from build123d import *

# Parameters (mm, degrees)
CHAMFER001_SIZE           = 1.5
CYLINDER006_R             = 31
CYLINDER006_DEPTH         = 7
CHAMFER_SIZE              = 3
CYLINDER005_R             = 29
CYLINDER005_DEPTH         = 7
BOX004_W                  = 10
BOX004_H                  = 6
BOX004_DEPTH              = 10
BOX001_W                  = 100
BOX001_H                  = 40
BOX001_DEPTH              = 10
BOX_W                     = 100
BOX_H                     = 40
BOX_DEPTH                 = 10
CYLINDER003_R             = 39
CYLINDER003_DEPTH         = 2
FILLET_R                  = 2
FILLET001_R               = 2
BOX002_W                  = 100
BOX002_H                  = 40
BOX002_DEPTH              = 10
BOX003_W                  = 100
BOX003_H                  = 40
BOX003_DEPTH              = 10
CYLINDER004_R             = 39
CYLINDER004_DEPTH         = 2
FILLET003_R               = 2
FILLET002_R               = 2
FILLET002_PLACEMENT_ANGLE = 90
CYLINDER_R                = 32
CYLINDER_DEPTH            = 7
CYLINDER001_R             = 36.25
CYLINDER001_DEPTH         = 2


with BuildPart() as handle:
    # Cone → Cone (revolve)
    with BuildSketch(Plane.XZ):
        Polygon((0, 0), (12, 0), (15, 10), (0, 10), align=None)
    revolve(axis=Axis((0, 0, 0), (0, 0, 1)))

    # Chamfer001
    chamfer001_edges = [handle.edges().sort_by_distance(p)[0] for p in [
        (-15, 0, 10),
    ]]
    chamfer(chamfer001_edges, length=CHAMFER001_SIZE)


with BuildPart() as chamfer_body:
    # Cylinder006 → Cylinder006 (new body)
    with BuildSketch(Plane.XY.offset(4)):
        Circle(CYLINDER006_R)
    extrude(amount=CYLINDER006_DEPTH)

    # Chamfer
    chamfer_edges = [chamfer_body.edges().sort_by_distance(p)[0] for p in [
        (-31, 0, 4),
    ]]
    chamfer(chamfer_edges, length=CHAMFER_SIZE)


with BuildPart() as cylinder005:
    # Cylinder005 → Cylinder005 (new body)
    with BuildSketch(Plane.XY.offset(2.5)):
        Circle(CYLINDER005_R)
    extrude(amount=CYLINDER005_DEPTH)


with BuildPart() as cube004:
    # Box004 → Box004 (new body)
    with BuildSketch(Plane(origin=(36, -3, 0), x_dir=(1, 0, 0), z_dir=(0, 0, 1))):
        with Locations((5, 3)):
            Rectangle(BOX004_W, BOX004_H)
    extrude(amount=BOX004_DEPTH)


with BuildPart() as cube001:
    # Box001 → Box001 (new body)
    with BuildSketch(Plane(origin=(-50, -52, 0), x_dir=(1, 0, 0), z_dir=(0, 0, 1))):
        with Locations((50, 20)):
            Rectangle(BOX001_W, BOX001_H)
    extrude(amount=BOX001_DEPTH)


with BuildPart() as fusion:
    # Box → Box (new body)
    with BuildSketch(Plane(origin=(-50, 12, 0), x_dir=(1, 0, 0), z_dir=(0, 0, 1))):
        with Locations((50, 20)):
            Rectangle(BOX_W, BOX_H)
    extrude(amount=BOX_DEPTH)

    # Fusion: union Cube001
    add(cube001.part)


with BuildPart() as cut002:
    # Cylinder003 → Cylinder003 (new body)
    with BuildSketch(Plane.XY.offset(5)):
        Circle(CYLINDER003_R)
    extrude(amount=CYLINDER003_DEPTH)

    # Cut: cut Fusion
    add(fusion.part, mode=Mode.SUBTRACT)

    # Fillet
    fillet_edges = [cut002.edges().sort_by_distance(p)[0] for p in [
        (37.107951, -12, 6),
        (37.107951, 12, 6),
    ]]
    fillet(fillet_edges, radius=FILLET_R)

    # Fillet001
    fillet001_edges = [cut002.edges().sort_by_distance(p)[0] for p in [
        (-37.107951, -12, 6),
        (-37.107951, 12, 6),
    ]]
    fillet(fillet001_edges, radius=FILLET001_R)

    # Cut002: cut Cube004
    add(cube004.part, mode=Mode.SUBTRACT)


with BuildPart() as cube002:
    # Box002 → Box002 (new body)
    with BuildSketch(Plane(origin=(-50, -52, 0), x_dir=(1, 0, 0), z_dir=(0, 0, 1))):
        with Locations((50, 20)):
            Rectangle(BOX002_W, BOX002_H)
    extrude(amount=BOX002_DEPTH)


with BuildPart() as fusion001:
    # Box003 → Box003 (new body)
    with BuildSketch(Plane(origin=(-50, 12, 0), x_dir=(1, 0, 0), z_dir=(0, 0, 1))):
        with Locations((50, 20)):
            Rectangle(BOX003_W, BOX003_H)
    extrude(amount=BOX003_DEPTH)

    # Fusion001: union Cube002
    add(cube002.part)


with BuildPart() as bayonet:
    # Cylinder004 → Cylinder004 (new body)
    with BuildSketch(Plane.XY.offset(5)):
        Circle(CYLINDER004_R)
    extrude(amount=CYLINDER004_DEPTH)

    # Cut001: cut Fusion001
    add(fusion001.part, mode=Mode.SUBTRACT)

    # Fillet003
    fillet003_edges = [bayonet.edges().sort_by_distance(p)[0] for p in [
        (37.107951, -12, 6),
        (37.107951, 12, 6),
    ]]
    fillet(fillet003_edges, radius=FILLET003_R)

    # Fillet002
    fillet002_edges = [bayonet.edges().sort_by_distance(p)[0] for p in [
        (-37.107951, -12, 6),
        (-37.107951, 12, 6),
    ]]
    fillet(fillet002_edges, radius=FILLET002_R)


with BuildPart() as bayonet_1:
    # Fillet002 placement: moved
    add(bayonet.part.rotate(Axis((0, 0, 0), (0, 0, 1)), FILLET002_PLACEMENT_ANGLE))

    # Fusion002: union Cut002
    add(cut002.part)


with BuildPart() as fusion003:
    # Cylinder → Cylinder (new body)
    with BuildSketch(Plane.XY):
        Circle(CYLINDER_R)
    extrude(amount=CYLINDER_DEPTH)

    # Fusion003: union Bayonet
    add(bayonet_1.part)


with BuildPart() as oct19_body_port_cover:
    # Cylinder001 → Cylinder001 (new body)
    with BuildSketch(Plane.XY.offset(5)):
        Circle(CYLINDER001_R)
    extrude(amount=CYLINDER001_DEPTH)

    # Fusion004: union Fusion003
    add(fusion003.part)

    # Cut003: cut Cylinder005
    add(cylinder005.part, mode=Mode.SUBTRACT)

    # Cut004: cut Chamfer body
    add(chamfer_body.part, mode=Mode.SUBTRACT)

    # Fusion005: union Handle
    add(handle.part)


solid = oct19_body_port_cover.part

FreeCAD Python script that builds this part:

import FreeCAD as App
import Part
import Sketcher
Q = App.Units.Quantity


def edges_at(feature, points):
    """Names of the edges that pass closest to the given points."""
    edges = feature.Shape.Edges
    near = lambda p: min(range(len(edges)), key=lambda i: edges[i].distToShape(Part.Vertex(*p))[0])
    return sorted({f"Edge{near(p) + 1}" for p in points})


def add_polygon(sketch, points):
    """Adds a closed chain of lines whose ends are joined by coincident constraints."""
    first, n = sketch.GeometryCount, len(points)
    for a, b in zip(points, points[1:] + points[:1]):
        sketch.addGeometry(Part.LineSegment(App.Vector(*a, 0), App.Vector(*b, 0)), False)
    for i in range(n):
        sketch.addConstraint(Sketcher.Constraint("Coincident", first + i, 2, first + (i + 1) % n, 1))

doc = App.newDocument("Part")
params = doc.addObject("Spreadsheet::Sheet", "Params")
for row, (alias, value) in enumerate([
    ("sketch1_width", "12 mm"),
    ("sketch1_width2", "15 mm"),
    ("sketch1_height", "10 mm"),
    ("revolution_angle", "360 deg"),
    ("chamfer_size", "1.5 mm"),
    ("sketch2_diameter", "62 mm"),
    ("pad1_length", "7 mm"),
    ("chamfer2_size", "3 mm"),
    ("sketch3_diameter", "58 mm"),
    ("pad2_length", "7 mm"),
    ("sketch4_width", "10 mm"),
    ("sketch4_height", "6 mm"),
    ("pad3_length", "10 mm"),
    ("sketch5_width", "100 mm"),
    ("sketch5_height", "40 mm"),
    ("pad4_length", "10 mm"),
    ("sketch6_width", "100 mm"),
    ("sketch6_height", "40 mm"),
    ("pad5_length", "10 mm"),
    ("sketch7_diameter", "78 mm"),
    ("pad6_length", "2 mm"),
    ("fillet_radius", "2 mm"),
    ("fillet2_radius", "2 mm"),
    ("sketch8_width", "100 mm"),
    ("sketch8_height", "40 mm"),
    ("pad7_length", "10 mm"),
    ("sketch9_width", "100 mm"),
    ("sketch9_height", "40 mm"),
    ("pad8_length", "10 mm"),
    ("sketch10_diameter", "78 mm"),
    ("pad9_length", "2 mm"),
    ("fillet3_radius", "2 mm"),
    ("fillet4_radius", "2 mm"),
    ("sketch11_diameter", "64 mm"),
    ("pad10_length", "7 mm"),
    ("sketch12_diameter", "72.5 mm"),
    ("pad11_length", "2 mm"),
], start=1):
    params.set(f"A{row}", alias)
    params.set(f"B{row}", "=" + value)
    params.setAlias(f"B{row}", alias)

body = doc.addObject("PartDesign::Body", "Body")

# Sketch on XZ plane
sketch1 = doc.addObject("Sketcher::SketchObject", "Sketch")
body.addObject(sketch1)
sketch1.AttachmentSupport = (doc.XZ_Plane, [""])
sketch1.MapMode = "FlatFace"
add_polygon(sketch1, [(0, 0), (12, 0), (15, 10), (0, 10)])  # lines 0-3
sketch1.addConstraint([
    Sketcher.Constraint("Horizontal", 0),
    Sketcher.Constraint("Horizontal", 2),
    Sketcher.Constraint("Vertical", 3),
    Sketcher.Constraint("Coincident", 3, 2, -1, 1),
    Sketcher.Constraint("DistanceX", 0, 1, 0, 2, Q("12 mm")),
    Sketcher.Constraint("DistanceX", 2, 2, 2, 1, Q("15 mm")),
    Sketcher.Constraint("DistanceY", 3, 2, 3, 1, Q("10 mm")),
])
sketch1.setExpression("Constraints[8]", "Params.sketch1_width")
sketch1.setExpression("Constraints[9]", "Params.sketch1_width2")
sketch1.setExpression("Constraints[10]", "Params.sketch1_height")
revolution = doc.addObject("PartDesign::Revolution", "Revolution")
body.addObject(revolution)
revolution.Profile = sketch1
revolution.ReferenceAxis = (sketch1, ["V_Axis"])
revolution.setExpression("Angle", "Params.revolution_angle")
doc.recompute()

chamfer = doc.addObject("PartDesign::Chamfer", "Chamfer")
body.addObject(chamfer)
chamfer.Base = (revolution, edges_at(revolution, [(-15, 0, 10)]))
chamfer.setExpression("Size", "Params.chamfer_size")
body2 = doc.addObject("PartDesign::Body", "Body001")

# Sketch on XY plane
sketch2 = doc.addObject("Sketcher::SketchObject", "Sketch001")
body2.addObject(sketch2)
sketch2.AttachmentSupport = (doc.getObject("XY_Plane001"), [""])
sketch2.MapMode = "FlatFace"
sketch2.AttachmentOffset = App.Placement(App.Vector(0, 0, 4), App.Rotation())
sketch2.addGeometry(Part.Circle(App.Vector(0, 0, 0), App.Vector(0, 0, 1), 31), False)
sketch2.addConstraint([
    Sketcher.Constraint("Coincident", 0, 3, -1, 1),
    Sketcher.Constraint("Diameter", 0, Q("62 mm")),
])
sketch2.setExpression("Constraints[1]", "Params.sketch2_diameter")
pad1 = doc.addObject("PartDesign::Pad", "Pad")
body2.addObject(pad1)
pad1.Profile = sketch2
pad1.setExpression("Length", "Params.pad1_length")
doc.recompute()

chamfer2 = doc.addObject("PartDesign::Chamfer", "Chamfer001")
body2.addObject(chamfer2)
chamfer2.Base = (pad1, edges_at(pad1, [(-31, 0, 4)]))
chamfer2.setExpression("Size", "Params.chamfer2_size")
body3 = doc.addObject("PartDesign::Body", "Body002")

# Sketch on XY plane
sketch3 = doc.addObject("Sketcher::SketchObject", "Sketch002")
body3.addObject(sketch3)
sketch3.AttachmentSupport = (doc.getObject("XY_Plane002"), [""])
sketch3.MapMode = "FlatFace"
sketch3.AttachmentOffset = App.Placement(App.Vector(0, 0, 2.5), App.Rotation())
sketch3.addGeometry(Part.Circle(App.Vector(0, 0, 0), App.Vector(0, 0, 1), 29), False)
sketch3.addConstraint([
    Sketcher.Constraint("Coincident", 0, 3, -1, 1),
    Sketcher.Constraint("Diameter", 0, Q("58 mm")),
])
sketch3.setExpression("Constraints[1]", "Params.sketch3_diameter")
pad2 = doc.addObject("PartDesign::Pad", "Pad001")
body3.addObject(pad2)
pad2.Profile = sketch3
pad2.setExpression("Length", "Params.pad2_length")
body4 = doc.addObject("PartDesign::Body", "Body003")

# Sketch on XY plane
sketch4 = doc.addObject("Sketcher::SketchObject", "Sketch003")
body4.addObject(sketch4)
sketch4.AttachmentSupport = (doc.getObject("XY_Plane003"), [""])
sketch4.MapMode = "FlatFace"
add_polygon(sketch4, [(36, 3), (36, -3), (46, -3), (46, 3)])  # lines 0-3
sketch4.addConstraint([
    Sketcher.Constraint("Vertical", 0),
    Sketcher.Constraint("Horizontal", 1),
    Sketcher.Constraint("Vertical", 2),
    Sketcher.Constraint("Horizontal", 3),
    Sketcher.Constraint("DistanceX", 1, 1, 1, 2, Q("10 mm")),
    Sketcher.Constraint("DistanceY", 0, 2, 0, 1, Q("6 mm")),
    Sketcher.Constraint("DistanceX", -1, 1, 0, 2, Q("36 mm")),
    Sketcher.Constraint("DistanceY", 0, 2, -1, 1, Q("3 mm")),
])
sketch4.setExpression("Constraints[8]", "Params.sketch4_width")
sketch4.setExpression("Constraints[9]", "Params.sketch4_height")
pad3 = doc.addObject("PartDesign::Pad", "Pad002")
body4.addObject(pad3)
pad3.Profile = sketch4
pad3.setExpression("Length", "Params.pad3_length")
body5 = doc.addObject("PartDesign::Body", "Body004")

# Sketch on XY plane
sketch5 = doc.addObject("Sketcher::SketchObject", "Sketch004")
body5.addObject(sketch5)
sketch5.AttachmentSupport = (doc.getObject("XY_Plane004"), [""])
sketch5.MapMode = "FlatFace"
add_polygon(sketch5, [(-50, -12), (-50, -52), (50, -52), (50, -12)])  # lines 0-3
sketch5.addConstraint([
    Sketcher.Constraint("Vertical", 0),
    Sketcher.Constraint("Horizontal", 1),
    Sketcher.Constraint("Vertical", 2),
    Sketcher.Constraint("Horizontal", 3),
    Sketcher.Constraint("DistanceX", 1, 1, 1, 2, Q("100 mm")),
    Sketcher.Constraint("DistanceY", 0, 2, 0, 1, Q("40 mm")),
    Sketcher.Constraint("DistanceX", 0, 2, -1, 1, Q("50 mm")),
    Sketcher.Constraint("DistanceY", 0, 2, -1, 1, Q("52 mm")),
])
sketch5.setExpression("Constraints[8]", "Params.sketch5_width")
sketch5.setExpression("Constraints[9]", "Params.sketch5_height")
pad4 = doc.addObject("PartDesign::Pad", "Pad003")
body5.addObject(pad4)
pad4.Profile = sketch5
pad4.setExpression("Length", "Params.pad4_length")
body6 = doc.addObject("PartDesign::Body", "Body005")
body6.AllowCompound = True

# Sketch on XY plane
sketch6 = doc.addObject("Sketcher::SketchObject", "Sketch005")
body6.addObject(sketch6)
sketch6.AttachmentSupport = (doc.getObject("XY_Plane005"), [""])
sketch6.MapMode = "FlatFace"
add_polygon(sketch6, [(-50, 52), (-50, 12), (50, 12), (50, 52)])  # lines 0-3
sketch6.addConstraint([
    Sketcher.Constraint("Vertical", 0),
    Sketcher.Constraint("Horizontal", 1),
    Sketcher.Constraint("Vertical", 2),
    Sketcher.Constraint("Horizontal", 3),
    Sketcher.Constraint("DistanceX", 1, 1, 1, 2, Q("100 mm")),
    Sketcher.Constraint("DistanceY", 0, 2, 0, 1, Q("40 mm")),
    Sketcher.Constraint("DistanceX", 0, 2, -1, 1, Q("50 mm")),
    Sketcher.Constraint("DistanceY", -1, 1, 0, 2, Q("12 mm")),
])
sketch6.setExpression("Constraints[8]", "Params.sketch6_width")
sketch6.setExpression("Constraints[9]", "Params.sketch6_height")
pad5 = doc.addObject("PartDesign::Pad", "Pad004")
body6.addObject(pad5)
pad5.Profile = sketch6
pad5.setExpression("Length", "Params.pad5_length")
doc.recompute()

boolean = doc.addObject("PartDesign::Boolean", "Boolean")
body6.addObject(boolean)
boolean.Type = "Fuse"
boolean.addObjects([body5])
body7 = doc.addObject("PartDesign::Body", "Body006")

# Sketch on XY plane
sketch7 = doc.addObject("Sketcher::SketchObject", "Sketch006")
body7.addObject(sketch7)
sketch7.AttachmentSupport = (doc.getObject("XY_Plane006"), [""])
sketch7.MapMode = "FlatFace"
sketch7.AttachmentOffset = App.Placement(App.Vector(0, 0, 5), App.Rotation())
sketch7.addGeometry(Part.Circle(App.Vector(0, 0, 0), App.Vector(0, 0, 1), 39), False)
sketch7.addConstraint([
    Sketcher.Constraint("Coincident", 0, 3, -1, 1),
    Sketcher.Constraint("Diameter", 0, Q("78 mm")),
])
sketch7.setExpression("Constraints[1]", "Params.sketch7_diameter")
pad6 = doc.addObject("PartDesign::Pad", "Pad005")
body7.addObject(pad6)
pad6.Profile = sketch7
pad6.setExpression("Length", "Params.pad6_length")
doc.recompute()

boolean2 = doc.addObject("PartDesign::Boolean", "Boolean001")
body7.addObject(boolean2)
boolean2.Type = "Cut"
boolean2.addObjects([body6])
doc.recompute()

fillet = doc.addObject("PartDesign::Fillet", "Fillet")
body7.addObject(fillet)
fillet.Base = (boolean2, edges_at(boolean2, [(37.108, -12, 6), (37.108, 12, 6)]))
fillet.setExpression("Radius", "Params.fillet_radius")
doc.recompute()

fillet2 = doc.addObject("PartDesign::Fillet", "Fillet001")
body7.addObject(fillet2)
fillet2.Base = (fillet, edges_at(fillet, [(-37.108, -12, 6), (-37.108, 12, 6)]))
fillet2.setExpression("Radius", "Params.fillet2_radius")
doc.recompute()

boolean3 = doc.addObject("PartDesign::Boolean", "Boolean002")
body7.addObject(boolean3)
boolean3.Type = "Cut"
boolean3.addObjects([body4])
body8 = doc.addObject("PartDesign::Body", "Body007")

# Sketch on XY plane
sketch8 = doc.addObject("Sketcher::SketchObject", "Sketch007")
body8.addObject(sketch8)
sketch8.AttachmentSupport = (doc.getObject("XY_Plane007"), [""])
sketch8.MapMode = "FlatFace"
add_polygon(sketch8, [(-50, -12), (-50, -52), (50, -52), (50, -12)])  # lines 0-3
sketch8.addConstraint([
    Sketcher.Constraint("Vertical", 0),
    Sketcher.Constraint("Horizontal", 1),
    Sketcher.Constraint("Vertical", 2),
    Sketcher.Constraint("Horizontal", 3),
    Sketcher.Constraint("DistanceX", 1, 1, 1, 2, Q("100 mm")),
    Sketcher.Constraint("DistanceY", 0, 2, 0, 1, Q("40 mm")),
    Sketcher.Constraint("DistanceX", 0, 2, -1, 1, Q("50 mm")),
    Sketcher.Constraint("DistanceY", 0, 2, -1, 1, Q("52 mm")),
])
sketch8.setExpression("Constraints[8]", "Params.sketch8_width")
sketch8.setExpression("Constraints[9]", "Params.sketch8_height")
pad7 = doc.addObject("PartDesign::Pad", "Pad006")
body8.addObject(pad7)
pad7.Profile = sketch8
pad7.setExpression("Length", "Params.pad7_length")
body9 = doc.addObject("PartDesign::Body", "Body008")
body9.AllowCompound = True

# Sketch on XY plane
sketch9 = doc.addObject("Sketcher::SketchObject", "Sketch008")
body9.addObject(sketch9)
sketch9.AttachmentSupport = (doc.getObject("XY_Plane008"), [""])
sketch9.MapMode = "FlatFace"
add_polygon(sketch9, [(-50, 52), (-50, 12), (50, 12), (50, 52)])  # lines 0-3
sketch9.addConstraint([
    Sketcher.Constraint("Vertical", 0),
    Sketcher.Constraint("Horizontal", 1),
    Sketcher.Constraint("Vertical", 2),
    Sketcher.Constraint("Horizontal", 3),
    Sketcher.Constraint("DistanceX", 1, 1, 1, 2, Q("100 mm")),
    Sketcher.Constraint("DistanceY", 0, 2, 0, 1, Q("40 mm")),
    Sketcher.Constraint("DistanceX", 0, 2, -1, 1, Q("50 mm")),
    Sketcher.Constraint("DistanceY", -1, 1, 0, 2, Q("12 mm")),
])
sketch9.setExpression("Constraints[8]", "Params.sketch9_width")
sketch9.setExpression("Constraints[9]", "Params.sketch9_height")
pad8 = doc.addObject("PartDesign::Pad", "Pad007")
body9.addObject(pad8)
pad8.Profile = sketch9
pad8.setExpression("Length", "Params.pad8_length")
doc.recompute()

boolean4 = doc.addObject("PartDesign::Boolean", "Boolean003")
body9.addObject(boolean4)
boolean4.Type = "Fuse"
boolean4.addObjects([body8])
body10 = doc.addObject("PartDesign::Body", "Body009")

# Sketch on XY plane
sketch10 = doc.addObject("Sketcher::SketchObject", "Sketch009")
body10.addObject(sketch10)
sketch10.AttachmentSupport = (doc.getObject("XY_Plane009"), [""])
sketch10.MapMode = "FlatFace"
sketch10.AttachmentOffset = App.Placement(App.Vector(0, 0, 5), App.Rotation())
sketch10.addGeometry(Part.Circle(App.Vector(0, 0, 0), App.Vector(0, 0, 1), 39), False)
sketch10.addConstraint([
    Sketcher.Constraint("Coincident", 0, 3, -1, 1),
    Sketcher.Constraint("Diameter", 0, Q("78 mm")),
])
sketch10.setExpression("Constraints[1]", "Params.sketch10_diameter")
pad9 = doc.addObject("PartDesign::Pad", "Pad008")
body10.addObject(pad9)
pad9.Profile = sketch10
pad9.setExpression("Length", "Params.pad9_length")
doc.recompute()

boolean5 = doc.addObject("PartDesign::Boolean", "Boolean004")
body10.addObject(boolean5)
boolean5.Type = "Cut"
boolean5.addObjects([body9])
doc.recompute()

fillet3 = doc.addObject("PartDesign::Fillet", "Fillet002")
body10.addObject(fillet3)
fillet3.Base = (boolean5, edges_at(boolean5, [(37.108, -12, 6), (37.108, 12, 6)]))
fillet3.setExpression("Radius", "Params.fillet3_radius")
doc.recompute()

fillet4 = doc.addObject("PartDesign::Fillet", "Fillet003")
body10.addObject(fillet4)
fillet4.Base = (fillet3, edges_at(fillet3, [(-37.108, -12, 6), (-37.108, 12, 6)]))
fillet4.setExpression("Radius", "Params.fillet4_radius")
body11 = doc.addObject("PartDesign::Body", "Body010")
doc.recompute()

body10.Placement = App.Placement(App.Vector(0, 0, 0), App.Rotation(App.Vector(0, 0, 1), 90))
boolean6 = doc.addObject("PartDesign::Boolean", "Boolean005")
body11.addObject(boolean6)
boolean6.Type = "Fuse"
boolean6.addObjects([body10])
doc.recompute()

boolean7 = doc.addObject("PartDesign::Boolean", "Boolean006")
body11.addObject(boolean7)
boolean7.Type = "Fuse"
boolean7.addObjects([body7])
body12 = doc.addObject("PartDesign::Body", "Body011")

# Sketch on XY plane
sketch11 = doc.addObject("Sketcher::SketchObject", "Sketch010")
body12.addObject(sketch11)
sketch11.AttachmentSupport = (doc.getObject("XY_Plane011"), [""])
sketch11.MapMode = "FlatFace"
sketch11.addGeometry(Part.Circle(App.Vector(0, 0, 0), App.Vector(0, 0, 1), 32), False)
sketch11.addConstraint([
    Sketcher.Constraint("Coincident", 0, 3, -1, 1),
    Sketcher.Constraint("Diameter", 0, Q("64 mm")),
])
sketch11.setExpression("Constraints[1]", "Params.sketch11_diameter")
pad10 = doc.addObject("PartDesign::Pad", "Pad009")
body12.addObject(pad10)
pad10.Profile = sketch11
pad10.setExpression("Length", "Params.pad10_length")
doc.recompute()

boolean8 = doc.addObject("PartDesign::Boolean", "Boolean007")
body12.addObject(boolean8)
boolean8.Type = "Fuse"
boolean8.addObjects([body11])
body13 = doc.addObject("PartDesign::Body", "Body012")

# Sketch on XY plane
sketch12 = doc.addObject("Sketcher::SketchObject", "Sketch011")
body13.addObject(sketch12)
sketch12.AttachmentSupport = (doc.getObject("XY_Plane012"), [""])
sketch12.MapMode = "FlatFace"
sketch12.AttachmentOffset = App.Placement(App.Vector(0, 0, 5), App.Rotation())
sketch12.addGeometry(Part.Circle(App.Vector(0, 0, 0), App.Vector(0, 0, 1), 36), False)
sketch12.addConstraint([
    Sketcher.Constraint("Coincident", 0, 3, -1, 1),
    Sketcher.Constraint("Diameter", 0, Q("72.5 mm")),
])
sketch12.setExpression("Constraints[1]", "Params.sketch12_diameter")
pad11 = doc.addObject("PartDesign::Pad", "Pad010")
body13.addObject(pad11)
pad11.Profile = sketch12
pad11.setExpression("Length", "Params.pad11_length")
doc.recompute()

boolean9 = doc.addObject("PartDesign::Boolean", "Boolean008")
body13.addObject(boolean9)
boolean9.Type = "Fuse"
boolean9.addObjects([body12])
doc.recompute()

boolean10 = doc.addObject("PartDesign::Boolean", "Boolean009")
body13.addObject(boolean10)
boolean10.Type = "Cut"
boolean10.addObjects([body3])
doc.recompute()

boolean11 = doc.addObject("PartDesign::Boolean", "Boolean010")
body13.addObject(boolean11)
boolean11.Type = "Cut"
boolean11.addObjects([body2])
doc.recompute()

boolean12 = doc.addObject("PartDesign::Boolean", "Boolean011")
body13.addObject(boolean12)
boolean12.Type = "Fuse"
boolean12.addObjects([body])

doc.recompute()
